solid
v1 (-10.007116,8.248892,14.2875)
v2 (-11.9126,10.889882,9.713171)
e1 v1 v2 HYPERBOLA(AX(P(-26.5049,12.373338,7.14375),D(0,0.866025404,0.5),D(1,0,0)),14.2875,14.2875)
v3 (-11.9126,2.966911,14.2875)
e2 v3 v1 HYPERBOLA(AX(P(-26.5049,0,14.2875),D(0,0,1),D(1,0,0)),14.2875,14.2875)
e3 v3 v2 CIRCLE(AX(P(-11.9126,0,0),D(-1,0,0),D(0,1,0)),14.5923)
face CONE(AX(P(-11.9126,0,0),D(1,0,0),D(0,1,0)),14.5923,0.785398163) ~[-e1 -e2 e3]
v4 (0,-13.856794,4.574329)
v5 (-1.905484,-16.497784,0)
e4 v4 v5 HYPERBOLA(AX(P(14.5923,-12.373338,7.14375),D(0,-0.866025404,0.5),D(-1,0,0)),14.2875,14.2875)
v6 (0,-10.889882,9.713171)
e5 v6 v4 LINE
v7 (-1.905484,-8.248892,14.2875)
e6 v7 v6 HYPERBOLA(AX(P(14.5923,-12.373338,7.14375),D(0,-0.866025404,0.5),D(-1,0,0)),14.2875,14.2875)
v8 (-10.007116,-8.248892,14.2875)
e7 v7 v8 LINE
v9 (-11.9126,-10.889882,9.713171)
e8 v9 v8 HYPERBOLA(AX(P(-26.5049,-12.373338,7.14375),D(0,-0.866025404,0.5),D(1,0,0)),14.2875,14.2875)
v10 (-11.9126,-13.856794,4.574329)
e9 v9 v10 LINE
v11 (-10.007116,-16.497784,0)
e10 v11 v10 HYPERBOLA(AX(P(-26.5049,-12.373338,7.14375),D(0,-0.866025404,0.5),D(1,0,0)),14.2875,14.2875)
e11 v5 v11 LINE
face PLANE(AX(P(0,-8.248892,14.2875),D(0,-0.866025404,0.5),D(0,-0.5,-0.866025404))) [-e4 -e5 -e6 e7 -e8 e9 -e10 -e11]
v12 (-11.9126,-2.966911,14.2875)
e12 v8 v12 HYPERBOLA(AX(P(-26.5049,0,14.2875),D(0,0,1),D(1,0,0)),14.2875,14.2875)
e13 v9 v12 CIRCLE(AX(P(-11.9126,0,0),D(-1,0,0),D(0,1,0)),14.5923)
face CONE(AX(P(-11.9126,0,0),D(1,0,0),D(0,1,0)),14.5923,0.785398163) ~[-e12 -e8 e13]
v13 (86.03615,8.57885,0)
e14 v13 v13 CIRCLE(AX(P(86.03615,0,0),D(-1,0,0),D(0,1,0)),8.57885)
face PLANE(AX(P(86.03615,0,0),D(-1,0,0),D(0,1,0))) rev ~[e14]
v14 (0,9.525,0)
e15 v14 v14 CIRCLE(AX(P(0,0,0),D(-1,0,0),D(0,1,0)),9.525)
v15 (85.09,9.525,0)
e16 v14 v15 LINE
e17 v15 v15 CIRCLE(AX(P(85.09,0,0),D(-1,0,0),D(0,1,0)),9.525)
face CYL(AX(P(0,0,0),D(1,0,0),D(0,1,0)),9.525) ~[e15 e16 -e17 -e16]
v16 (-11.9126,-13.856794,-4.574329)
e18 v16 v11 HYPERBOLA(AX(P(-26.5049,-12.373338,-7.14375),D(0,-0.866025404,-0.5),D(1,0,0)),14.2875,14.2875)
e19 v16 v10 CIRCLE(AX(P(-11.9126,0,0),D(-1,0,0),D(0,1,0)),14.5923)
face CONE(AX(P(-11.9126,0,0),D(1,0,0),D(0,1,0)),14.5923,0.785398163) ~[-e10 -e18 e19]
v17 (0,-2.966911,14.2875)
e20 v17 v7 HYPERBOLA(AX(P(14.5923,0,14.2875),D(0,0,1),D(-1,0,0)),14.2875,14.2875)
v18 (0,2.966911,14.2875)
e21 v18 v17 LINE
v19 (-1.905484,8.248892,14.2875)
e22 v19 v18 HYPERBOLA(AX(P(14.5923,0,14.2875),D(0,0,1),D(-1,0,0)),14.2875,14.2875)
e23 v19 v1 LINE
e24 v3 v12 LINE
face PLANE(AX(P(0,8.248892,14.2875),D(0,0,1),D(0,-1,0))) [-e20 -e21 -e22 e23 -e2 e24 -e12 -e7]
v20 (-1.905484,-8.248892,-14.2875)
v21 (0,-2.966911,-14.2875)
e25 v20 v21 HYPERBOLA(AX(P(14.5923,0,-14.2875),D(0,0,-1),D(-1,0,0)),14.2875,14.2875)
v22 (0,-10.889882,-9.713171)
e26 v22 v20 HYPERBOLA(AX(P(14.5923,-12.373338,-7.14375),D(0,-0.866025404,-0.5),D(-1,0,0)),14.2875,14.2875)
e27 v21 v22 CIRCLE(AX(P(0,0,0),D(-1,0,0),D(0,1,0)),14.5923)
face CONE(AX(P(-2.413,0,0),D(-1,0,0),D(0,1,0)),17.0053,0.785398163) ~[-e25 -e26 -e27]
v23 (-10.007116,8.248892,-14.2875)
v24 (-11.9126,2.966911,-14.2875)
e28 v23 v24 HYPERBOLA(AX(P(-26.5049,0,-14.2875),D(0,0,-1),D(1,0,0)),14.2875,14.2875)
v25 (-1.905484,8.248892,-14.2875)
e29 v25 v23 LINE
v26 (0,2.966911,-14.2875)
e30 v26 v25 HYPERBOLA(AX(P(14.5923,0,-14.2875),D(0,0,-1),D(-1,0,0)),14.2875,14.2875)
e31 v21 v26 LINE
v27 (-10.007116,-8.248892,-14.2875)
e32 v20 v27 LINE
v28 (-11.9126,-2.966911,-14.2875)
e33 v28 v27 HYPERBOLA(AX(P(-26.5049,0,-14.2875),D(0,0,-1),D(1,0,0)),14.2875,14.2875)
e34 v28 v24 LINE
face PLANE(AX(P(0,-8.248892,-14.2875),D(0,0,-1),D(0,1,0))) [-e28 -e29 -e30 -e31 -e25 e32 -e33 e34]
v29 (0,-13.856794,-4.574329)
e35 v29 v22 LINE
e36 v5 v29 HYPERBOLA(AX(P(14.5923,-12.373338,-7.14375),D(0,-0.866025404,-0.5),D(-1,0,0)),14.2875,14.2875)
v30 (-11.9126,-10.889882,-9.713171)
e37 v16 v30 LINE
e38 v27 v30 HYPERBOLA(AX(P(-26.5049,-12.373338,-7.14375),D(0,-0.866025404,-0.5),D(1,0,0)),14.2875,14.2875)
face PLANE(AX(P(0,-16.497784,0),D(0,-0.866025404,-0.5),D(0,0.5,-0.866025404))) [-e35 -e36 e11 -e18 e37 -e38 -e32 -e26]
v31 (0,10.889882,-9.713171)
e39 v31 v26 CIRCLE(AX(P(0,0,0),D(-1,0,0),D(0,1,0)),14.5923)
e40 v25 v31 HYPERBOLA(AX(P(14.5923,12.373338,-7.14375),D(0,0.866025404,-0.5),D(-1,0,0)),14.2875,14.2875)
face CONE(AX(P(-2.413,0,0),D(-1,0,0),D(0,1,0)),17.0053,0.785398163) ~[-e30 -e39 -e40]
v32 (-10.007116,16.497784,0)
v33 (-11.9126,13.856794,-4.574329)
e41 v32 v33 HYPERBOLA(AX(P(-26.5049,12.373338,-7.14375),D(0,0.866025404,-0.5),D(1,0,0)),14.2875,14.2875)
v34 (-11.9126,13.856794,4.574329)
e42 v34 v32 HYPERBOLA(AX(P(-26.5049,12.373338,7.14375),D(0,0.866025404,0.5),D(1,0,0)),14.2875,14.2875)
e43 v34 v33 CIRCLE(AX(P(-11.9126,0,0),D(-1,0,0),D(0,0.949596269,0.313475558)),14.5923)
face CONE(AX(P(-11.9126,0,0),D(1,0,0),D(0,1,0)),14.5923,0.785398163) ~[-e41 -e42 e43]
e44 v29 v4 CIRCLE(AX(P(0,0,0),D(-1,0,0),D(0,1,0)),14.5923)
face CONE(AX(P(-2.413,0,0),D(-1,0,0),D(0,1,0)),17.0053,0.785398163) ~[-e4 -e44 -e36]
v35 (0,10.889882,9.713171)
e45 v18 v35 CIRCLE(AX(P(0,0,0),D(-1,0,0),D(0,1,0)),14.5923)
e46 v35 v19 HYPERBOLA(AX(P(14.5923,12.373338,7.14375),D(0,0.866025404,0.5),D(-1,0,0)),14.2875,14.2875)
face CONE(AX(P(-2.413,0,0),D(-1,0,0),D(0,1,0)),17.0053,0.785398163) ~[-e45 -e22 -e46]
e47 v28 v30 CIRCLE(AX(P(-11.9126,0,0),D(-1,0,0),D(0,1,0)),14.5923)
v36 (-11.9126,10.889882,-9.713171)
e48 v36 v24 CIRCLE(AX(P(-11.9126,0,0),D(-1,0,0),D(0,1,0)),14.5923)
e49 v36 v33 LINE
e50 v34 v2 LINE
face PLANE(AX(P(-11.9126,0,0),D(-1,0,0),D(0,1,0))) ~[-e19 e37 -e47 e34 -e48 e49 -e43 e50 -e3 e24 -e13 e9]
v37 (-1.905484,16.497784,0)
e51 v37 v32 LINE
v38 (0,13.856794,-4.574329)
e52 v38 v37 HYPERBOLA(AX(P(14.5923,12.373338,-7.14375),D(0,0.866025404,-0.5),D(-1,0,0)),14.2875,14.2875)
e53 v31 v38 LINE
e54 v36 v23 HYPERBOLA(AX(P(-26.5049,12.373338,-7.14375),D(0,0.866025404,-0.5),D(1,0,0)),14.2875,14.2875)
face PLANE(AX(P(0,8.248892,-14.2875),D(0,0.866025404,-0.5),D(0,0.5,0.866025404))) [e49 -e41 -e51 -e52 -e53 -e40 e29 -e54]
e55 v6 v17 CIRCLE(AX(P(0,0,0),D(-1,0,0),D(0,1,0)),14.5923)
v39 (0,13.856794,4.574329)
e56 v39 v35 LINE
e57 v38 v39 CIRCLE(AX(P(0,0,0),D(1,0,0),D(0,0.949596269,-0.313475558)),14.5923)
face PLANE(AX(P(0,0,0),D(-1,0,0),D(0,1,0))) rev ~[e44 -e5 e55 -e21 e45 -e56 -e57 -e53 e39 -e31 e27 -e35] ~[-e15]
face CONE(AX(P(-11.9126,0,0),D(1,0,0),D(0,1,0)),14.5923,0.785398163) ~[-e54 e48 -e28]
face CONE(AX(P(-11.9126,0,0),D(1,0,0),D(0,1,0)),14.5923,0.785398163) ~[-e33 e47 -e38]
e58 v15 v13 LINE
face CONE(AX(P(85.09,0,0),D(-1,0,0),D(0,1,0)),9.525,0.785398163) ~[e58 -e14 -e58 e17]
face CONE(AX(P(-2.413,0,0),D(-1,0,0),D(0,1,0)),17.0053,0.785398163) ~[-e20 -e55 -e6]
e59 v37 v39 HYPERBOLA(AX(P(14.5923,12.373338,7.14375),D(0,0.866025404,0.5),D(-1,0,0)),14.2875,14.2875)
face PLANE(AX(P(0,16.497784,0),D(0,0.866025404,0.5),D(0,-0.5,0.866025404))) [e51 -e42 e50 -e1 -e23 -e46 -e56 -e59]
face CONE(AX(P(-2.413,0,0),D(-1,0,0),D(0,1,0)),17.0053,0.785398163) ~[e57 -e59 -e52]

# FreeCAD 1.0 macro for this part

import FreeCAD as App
import Part
import Sketcher
Q = App.Units.Quantity


def add_polygon(sketch, points):
    """Adds a closed chain of lines whose ends are joined by coincident constraints."""
    first, n = sketch.GeometryCount, len(points)
    for a, b in zip(points, points[1:] + points[:1]):
        sketch.addGeometry(Part.LineSegment(App.Vector(*a, 0), App.Vector(*b, 0)), False)
    for i in range(n):
        sketch.addConstraint(Sketcher.Constraint("Coincident", first + i, 2, first + (i + 1) % n, 1))

doc = App.newDocument("Part")
params = doc.addObject("Spreadsheet::Sheet", "Params")
for row, (alias, value) in enumerate([
    ("sketch1_width", "3.35 in"),
    ("sketch1_width2", "0.279 in"),
    ("revolution_angle", "360 deg"),
    ("sketch2_diameter", "2.25 in"),
    ("pocket1_length", "0.469 in"),
], start=1):
    params.set(f"A{row}", alias)
    params.set(f"B{row}", "=" + value)
    params.setAlias(f"B{row}", alias)

body = doc.addObject("PartDesign::Body", "Body")

# Sketch on XY plane
sketch1 = body.newObject("Sketcher::SketchObject", "Sketch")
sketch1.AttachmentSupport = (doc.getObject("XY_Plane"), [""])
sketch1.MapMode = "FlatFace"
add_polygon(sketch1, [(-11.9, 14.6), (-11.9, 0), (86, 0), (86, 8.6), (85.1, 9.5), (0, 9.5), (0, 14.6), (-2.4, 17), (-9.5, 17)])  # lines 0-8
sketch1.addConstraint(Sketcher.Constraint("Vertical", 0))
sketch1.addConstraint(Sketcher.Constraint("Horizontal", 1))
sketch1.addConstraint(Sketcher.Constraint("Vertical", 2))
sketch1.addConstraint(Sketcher.Constraint("Horizontal", 4))
sketch1.addConstraint(Sketcher.Constraint("Vertical", 5))
sketch1.addConstraint(Sketcher.Constraint("Horizontal", 7))
sketch1.addConstraint(Sketcher.Constraint("PointOnObject", 0, 2, -1))
sketch1.addConstraint(Sketcher.Constraint("PointOnObject", 4, 2, -2))
sketch1.addConstraint(Sketcher.Constraint("Parallel", 3, 6))
sketch1.addConstraint(Sketcher.Constraint("Perpendicular", 6, 8))
sketch1.addConstraint(Sketcher.Constraint("Horizontal", 5, 2, 8, 2))
sketch1.addConstraint(Sketcher.Constraint("Equal", 6, 8))
sketch1.addConstraint(Sketcher.Constraint("DistanceX", 4, 2, 4, 1, Q("3.35 in")))
sketch1.addConstraint(Sketcher.Constraint("DistanceX", 7, 2, 7, 1, Q("0.279 in")))
sketch1.addConstraint(Sketcher.Constraint("DistanceY", 0, 2, 0, 1, Q("0.5745 in")))
sketch1.addConstraint(Sketcher.Constraint("DistanceY", 5, 1, 5, 2, Q("0.1995 in")))
sketch1.addConstraint(Sketcher.Constraint("DistanceX", 0, 2, -1, 1, Q("0.469 in")))
sketch1.addConstraint(Sketcher.Constraint("DistanceX", 1, 1, 1, 2, 97.94875))
sketch1.setExpression("Constraints[21]", "Params.sketch1_width")
sketch1.setExpression("Constraints[22]", "Params.sketch1_width2")
revolution = body.newObject("PartDesign::Revolution", "Revolution")
revolution.Profile = sketch1
revolution.ReferenceAxis = (sketch1, ["H_Axis"])
revolution.setExpression("Angle", "Params.revolution_angle")

# Sketch on YZ plane
sketch2 = body.newObject("Sketcher::SketchObject", "Sketch001")
sketch2.AttachmentSupport = (doc.getObject("YZ_Plane"), [""])
sketch2.MapMode = "FlatFace"
sketch2.addGeometry(Part.Circle(App.Vector(0, 0, 0), App.Vector(0, 0, 1), 29), False)  # 0
add_polygon(sketch2, [(-16, 0), (-8, 14), (8, 14), (16, 0), (8, -14), (-8, -14)])  # lines 1-6
sketch2.addConstraint(Sketcher.Constraint("Horizontal", 2))
sketch2.addConstraint(Sketcher.Constraint("Horizontal", 5))
sketch2.addConstraint(Sketcher.Constraint("Coincident", 0, 3, -1, 1))
sketch2.addConstraint(Sketcher.Constraint("Symmetric", 1, 2, 4, 2, -1, 1))
sketch2.addConstraint(Sketcher.Constraint("Symmetric", 3, 2, 6, 2, -1, 1))
sketch2.addConstraint(Sketcher.Constraint("PointOnObject", 3, 2, -1))
sketch2.addConstraint(Sketcher.Constraint("Parallel", 3, 6))
sketch2.addConstraint(Sketcher.Constraint("Vertical", 2, 2, 4, 2))
sketch2.addConstraint(Sketcher.Constraint("Diameter", 0, Q("2.25 in")))
sketch2.addConstraint(Sketcher.Constraint("Angle", 1, Q("60 deg")))
sketch2.addConstraint(Sketcher.Constraint("DistanceY", -1, 1, 1, 2, Q("0.5625 in")))
sketch2.addConstraint(Sketcher.Constraint("DistanceX", 2, 1, 2, 2, 16.497784))
sketch2.setExpression("Constraints[14]", "Params.sketch2_diameter")
pocket1 = body.newObject("PartDesign::Pocket", "Pocket")
pocket1.Profile = sketch2
pocket1.setExpression("Length", "Params.pocket1_length")

doc.recompute()
